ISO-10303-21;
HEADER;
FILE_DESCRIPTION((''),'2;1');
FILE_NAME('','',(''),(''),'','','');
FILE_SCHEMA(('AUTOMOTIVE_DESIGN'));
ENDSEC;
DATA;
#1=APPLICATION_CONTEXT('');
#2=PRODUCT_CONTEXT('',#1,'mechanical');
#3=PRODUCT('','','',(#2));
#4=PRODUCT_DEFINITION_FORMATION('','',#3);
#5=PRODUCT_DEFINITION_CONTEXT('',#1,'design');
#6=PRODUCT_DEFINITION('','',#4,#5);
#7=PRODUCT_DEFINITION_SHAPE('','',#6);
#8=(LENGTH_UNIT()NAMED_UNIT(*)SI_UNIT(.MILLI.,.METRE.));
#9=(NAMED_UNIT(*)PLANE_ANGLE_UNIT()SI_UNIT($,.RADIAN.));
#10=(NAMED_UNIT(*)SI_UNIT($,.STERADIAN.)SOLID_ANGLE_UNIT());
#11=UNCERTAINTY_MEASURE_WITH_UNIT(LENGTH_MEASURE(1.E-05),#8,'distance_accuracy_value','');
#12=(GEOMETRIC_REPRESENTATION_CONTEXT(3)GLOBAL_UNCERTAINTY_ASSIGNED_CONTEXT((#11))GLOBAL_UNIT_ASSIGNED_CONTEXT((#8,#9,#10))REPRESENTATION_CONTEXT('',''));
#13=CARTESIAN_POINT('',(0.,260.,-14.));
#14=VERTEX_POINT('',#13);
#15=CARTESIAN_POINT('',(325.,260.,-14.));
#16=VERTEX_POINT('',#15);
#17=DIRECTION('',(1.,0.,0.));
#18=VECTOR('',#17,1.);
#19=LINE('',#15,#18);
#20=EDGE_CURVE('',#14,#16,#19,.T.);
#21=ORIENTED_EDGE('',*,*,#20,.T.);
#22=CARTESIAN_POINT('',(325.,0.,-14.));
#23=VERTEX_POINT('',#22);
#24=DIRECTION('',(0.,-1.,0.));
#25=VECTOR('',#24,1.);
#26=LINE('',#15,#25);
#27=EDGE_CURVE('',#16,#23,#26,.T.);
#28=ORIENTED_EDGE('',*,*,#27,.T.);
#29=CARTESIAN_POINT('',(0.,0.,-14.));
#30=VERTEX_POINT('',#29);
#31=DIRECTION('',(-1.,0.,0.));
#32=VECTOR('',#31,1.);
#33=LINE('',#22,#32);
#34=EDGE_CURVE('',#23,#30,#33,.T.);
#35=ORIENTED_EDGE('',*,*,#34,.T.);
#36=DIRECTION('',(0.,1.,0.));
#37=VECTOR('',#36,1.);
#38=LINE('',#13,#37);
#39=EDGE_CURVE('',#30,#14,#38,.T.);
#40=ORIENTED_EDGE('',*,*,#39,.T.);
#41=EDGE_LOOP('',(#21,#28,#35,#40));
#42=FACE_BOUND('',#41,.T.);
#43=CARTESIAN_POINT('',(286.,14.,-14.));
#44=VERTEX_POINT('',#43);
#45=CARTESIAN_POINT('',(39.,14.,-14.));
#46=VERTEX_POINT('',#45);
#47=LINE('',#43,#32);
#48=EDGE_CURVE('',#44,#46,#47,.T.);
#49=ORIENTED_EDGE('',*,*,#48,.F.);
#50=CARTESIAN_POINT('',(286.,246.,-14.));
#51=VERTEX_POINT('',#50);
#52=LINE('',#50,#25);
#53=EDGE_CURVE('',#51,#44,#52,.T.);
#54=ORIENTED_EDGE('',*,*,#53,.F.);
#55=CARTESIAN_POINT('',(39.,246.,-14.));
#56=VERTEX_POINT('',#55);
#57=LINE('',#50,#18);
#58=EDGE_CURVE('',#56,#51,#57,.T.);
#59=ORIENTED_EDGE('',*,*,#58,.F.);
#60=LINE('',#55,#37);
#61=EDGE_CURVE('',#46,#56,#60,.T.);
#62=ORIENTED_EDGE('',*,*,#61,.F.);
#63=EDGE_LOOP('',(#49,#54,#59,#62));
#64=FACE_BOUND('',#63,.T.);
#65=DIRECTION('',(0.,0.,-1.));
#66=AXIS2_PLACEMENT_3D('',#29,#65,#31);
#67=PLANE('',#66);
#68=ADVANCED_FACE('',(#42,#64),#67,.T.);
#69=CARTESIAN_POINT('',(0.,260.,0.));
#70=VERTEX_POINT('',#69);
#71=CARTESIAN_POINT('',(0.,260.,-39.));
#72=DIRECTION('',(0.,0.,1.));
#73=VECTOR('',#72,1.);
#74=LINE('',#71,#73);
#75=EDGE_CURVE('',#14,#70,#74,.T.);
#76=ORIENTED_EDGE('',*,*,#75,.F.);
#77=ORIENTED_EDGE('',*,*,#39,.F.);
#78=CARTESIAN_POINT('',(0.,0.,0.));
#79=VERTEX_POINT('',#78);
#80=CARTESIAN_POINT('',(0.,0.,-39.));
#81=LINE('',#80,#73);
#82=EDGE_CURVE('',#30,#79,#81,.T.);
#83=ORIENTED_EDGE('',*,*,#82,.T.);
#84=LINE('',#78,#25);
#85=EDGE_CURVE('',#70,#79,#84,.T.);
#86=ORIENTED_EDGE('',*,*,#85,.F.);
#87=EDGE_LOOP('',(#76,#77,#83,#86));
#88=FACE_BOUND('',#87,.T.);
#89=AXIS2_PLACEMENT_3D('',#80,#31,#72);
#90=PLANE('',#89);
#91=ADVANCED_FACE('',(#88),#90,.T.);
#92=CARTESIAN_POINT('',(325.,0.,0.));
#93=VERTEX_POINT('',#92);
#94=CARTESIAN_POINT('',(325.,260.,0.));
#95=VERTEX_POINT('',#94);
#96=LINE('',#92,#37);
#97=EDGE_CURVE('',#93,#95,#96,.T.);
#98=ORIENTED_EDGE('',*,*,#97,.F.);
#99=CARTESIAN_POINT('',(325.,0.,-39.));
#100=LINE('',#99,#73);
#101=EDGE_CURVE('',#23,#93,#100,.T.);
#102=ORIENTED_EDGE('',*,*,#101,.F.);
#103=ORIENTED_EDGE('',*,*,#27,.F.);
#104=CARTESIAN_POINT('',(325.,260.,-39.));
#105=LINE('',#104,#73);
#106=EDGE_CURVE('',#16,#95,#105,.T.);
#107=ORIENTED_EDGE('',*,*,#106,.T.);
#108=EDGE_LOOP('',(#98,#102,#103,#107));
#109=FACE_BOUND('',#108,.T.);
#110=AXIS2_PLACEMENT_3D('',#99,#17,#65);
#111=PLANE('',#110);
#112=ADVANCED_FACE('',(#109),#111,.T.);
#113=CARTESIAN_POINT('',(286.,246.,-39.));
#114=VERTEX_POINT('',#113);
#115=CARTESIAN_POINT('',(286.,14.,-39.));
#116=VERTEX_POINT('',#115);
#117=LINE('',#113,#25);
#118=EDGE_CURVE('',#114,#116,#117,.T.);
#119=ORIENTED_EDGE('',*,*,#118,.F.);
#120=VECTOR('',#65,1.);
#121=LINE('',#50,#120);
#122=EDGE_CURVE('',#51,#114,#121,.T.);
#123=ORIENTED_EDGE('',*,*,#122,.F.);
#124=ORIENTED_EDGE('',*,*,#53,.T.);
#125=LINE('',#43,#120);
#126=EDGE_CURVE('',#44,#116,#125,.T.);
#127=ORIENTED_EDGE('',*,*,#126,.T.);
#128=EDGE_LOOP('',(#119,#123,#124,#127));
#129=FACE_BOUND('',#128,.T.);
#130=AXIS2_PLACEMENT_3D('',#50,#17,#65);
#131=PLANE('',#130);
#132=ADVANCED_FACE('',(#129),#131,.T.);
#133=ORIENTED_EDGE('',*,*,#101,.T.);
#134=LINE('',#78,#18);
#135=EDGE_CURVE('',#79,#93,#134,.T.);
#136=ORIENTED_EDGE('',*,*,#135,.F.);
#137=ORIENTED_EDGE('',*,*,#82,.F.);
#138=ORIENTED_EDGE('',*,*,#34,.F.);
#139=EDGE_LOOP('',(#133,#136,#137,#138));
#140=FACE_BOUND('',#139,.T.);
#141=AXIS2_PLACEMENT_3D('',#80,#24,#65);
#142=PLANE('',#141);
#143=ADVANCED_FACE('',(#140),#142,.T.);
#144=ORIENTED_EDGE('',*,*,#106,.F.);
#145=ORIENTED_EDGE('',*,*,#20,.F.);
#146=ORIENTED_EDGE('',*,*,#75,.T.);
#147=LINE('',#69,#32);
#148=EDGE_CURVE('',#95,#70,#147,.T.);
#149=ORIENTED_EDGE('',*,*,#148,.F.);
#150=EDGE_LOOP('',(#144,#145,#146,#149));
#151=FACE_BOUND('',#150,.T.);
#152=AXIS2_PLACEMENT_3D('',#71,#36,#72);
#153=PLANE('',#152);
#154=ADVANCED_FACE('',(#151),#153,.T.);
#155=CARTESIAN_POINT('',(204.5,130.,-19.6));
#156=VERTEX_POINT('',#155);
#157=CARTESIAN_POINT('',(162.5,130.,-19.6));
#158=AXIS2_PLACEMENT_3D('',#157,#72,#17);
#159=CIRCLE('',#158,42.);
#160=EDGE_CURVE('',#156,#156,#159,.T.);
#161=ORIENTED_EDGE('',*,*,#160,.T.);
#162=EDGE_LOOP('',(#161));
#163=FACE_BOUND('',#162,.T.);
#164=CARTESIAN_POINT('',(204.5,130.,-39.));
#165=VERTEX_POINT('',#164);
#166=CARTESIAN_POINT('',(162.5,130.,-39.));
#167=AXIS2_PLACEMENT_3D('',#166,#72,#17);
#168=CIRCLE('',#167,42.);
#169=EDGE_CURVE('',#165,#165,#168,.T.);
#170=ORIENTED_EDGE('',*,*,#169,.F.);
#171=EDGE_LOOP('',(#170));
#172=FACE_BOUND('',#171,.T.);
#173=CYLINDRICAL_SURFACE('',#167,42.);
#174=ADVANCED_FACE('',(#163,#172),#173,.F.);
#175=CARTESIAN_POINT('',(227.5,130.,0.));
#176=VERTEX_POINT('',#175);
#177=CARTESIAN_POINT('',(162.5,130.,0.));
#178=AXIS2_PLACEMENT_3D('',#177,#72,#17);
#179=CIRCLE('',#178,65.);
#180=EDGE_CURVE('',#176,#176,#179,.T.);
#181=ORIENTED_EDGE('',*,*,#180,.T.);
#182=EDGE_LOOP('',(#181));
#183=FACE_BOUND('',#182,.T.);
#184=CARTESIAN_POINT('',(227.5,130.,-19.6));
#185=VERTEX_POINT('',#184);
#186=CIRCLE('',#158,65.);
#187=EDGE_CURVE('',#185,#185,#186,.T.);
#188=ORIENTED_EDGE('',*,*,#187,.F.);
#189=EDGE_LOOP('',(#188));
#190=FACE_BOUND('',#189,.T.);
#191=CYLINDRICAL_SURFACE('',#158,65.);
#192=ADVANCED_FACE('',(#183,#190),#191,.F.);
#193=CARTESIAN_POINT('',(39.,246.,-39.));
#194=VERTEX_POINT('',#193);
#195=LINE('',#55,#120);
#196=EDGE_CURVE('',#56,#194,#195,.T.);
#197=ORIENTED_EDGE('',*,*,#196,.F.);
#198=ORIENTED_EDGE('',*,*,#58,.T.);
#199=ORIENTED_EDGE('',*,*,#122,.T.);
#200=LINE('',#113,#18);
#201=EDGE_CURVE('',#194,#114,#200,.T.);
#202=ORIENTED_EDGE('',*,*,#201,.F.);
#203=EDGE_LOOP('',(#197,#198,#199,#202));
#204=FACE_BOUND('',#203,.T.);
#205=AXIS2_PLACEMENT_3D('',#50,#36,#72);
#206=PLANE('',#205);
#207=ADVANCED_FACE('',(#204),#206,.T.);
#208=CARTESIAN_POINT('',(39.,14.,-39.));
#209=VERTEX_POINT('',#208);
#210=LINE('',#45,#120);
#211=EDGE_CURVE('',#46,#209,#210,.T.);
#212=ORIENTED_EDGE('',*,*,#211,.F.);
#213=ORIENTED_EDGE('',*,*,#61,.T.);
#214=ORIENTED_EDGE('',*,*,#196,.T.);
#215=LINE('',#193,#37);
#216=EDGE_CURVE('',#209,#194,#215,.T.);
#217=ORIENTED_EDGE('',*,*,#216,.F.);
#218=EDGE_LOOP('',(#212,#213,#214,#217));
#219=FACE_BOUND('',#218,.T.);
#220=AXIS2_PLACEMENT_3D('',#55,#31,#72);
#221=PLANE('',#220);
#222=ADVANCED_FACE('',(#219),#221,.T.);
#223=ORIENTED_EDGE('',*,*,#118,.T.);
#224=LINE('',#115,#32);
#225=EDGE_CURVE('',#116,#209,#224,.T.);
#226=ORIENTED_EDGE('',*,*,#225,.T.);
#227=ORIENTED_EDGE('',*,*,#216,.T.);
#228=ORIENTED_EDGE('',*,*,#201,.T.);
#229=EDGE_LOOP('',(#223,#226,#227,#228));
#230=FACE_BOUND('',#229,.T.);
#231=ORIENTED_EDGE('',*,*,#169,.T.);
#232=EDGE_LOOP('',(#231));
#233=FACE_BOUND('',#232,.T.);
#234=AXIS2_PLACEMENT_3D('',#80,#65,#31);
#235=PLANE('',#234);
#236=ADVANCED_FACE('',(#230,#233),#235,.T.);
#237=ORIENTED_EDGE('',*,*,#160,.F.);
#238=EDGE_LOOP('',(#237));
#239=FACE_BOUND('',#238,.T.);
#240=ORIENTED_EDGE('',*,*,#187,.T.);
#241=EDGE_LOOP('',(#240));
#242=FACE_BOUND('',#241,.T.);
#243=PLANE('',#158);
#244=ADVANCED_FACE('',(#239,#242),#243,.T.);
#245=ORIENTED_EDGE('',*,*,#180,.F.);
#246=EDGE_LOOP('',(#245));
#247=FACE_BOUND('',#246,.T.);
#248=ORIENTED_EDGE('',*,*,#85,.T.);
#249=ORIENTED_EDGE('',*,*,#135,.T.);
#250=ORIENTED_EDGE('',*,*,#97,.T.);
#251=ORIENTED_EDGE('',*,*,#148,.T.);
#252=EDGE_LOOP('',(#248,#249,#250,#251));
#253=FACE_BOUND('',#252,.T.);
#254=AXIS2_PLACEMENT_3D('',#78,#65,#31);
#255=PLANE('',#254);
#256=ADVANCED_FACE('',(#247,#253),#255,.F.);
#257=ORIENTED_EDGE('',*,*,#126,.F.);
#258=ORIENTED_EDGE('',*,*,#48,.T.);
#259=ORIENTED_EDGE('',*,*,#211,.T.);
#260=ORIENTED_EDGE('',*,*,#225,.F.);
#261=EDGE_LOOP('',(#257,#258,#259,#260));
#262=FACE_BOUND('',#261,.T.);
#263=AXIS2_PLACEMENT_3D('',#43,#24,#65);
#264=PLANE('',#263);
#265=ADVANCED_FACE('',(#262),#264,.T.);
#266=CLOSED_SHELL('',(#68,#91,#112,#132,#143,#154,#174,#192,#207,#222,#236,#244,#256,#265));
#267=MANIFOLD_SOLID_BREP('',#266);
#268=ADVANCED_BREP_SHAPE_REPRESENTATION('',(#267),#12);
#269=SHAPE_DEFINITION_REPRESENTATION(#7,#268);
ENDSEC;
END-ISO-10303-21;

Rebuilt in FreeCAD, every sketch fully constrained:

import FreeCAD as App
import Part
import Sketcher
from FreeCAD import Vector
Q = App.Units.Quantity

doc = App.newDocument("Part")
params = doc.addObject("Spreadsheet::Sheet", "Params")
for row, (alias, value) in enumerate([
    ("sketch1_width", "325 mm"),
    ("sketch1_height", "260 mm"),
    ("pad1_length", "39 mm"),
    ("sketch2_diameter", "130 mm"),
    ("pocket1_length", "19.6 mm"),
    ("sketch3_diameter", "84 mm"),
    ("sketch4_width", "325 mm"),
    ("sketch4_width2", "247 mm"),
    ("sketch4_height", "260 mm"),
    ("sketch4_height2", "232 mm"),
    ("pocket3_length", "25 mm"),
], start=1):
    params.set(f"A{row}", alias)
    params.set(f"B{row}", "=" + value)
    params.setAlias(f"B{row}", alias)

body = doc.addObject("PartDesign::Body", "Body")

sketch1 = doc.addObject("Sketcher::SketchObject", "Sketch")
body.addObject(sketch1)
sketch1.AttachmentSupport = (doc.XY_Plane, [""])
sketch1.MapMode = "FlatFace"
sketch1.addGeometry([
    Part.LineSegment(Vector(0, 260, 0), Vector(0, 0, 0)),
    Part.LineSegment(Vector(0, 0, 0), Vector(325, 0, 0)),
    Part.LineSegment(Vector(325, 0, 0), Vector(325, 260, 0)),
    Part.LineSegment(Vector(325, 260, 0), Vector(0, 260, 0)),
], False)
sketch1.addConstraint([
    Sketcher.Constraint("Coincident", 0, 2, 1, 1),
    Sketcher.Constraint("Coincident", 1, 2, 2, 1),
    Sketcher.Constraint("Coincident", 2, 2, 3, 1),
    Sketcher.Constraint("Coincident", 3, 2, 0, 1),
    Sketcher.Constraint("Vertical", 0),
    Sketcher.Constraint("Horizontal", 1),
    Sketcher.Constraint("Vertical", 2),
    Sketcher.Constraint("Horizontal", 3),
    Sketcher.Constraint("Coincident", 0, 2, -1, 1),
    Sketcher.Constraint("DistanceX", 1, 1, 1, 2, Q("325 mm")),
    Sketcher.Constraint("DistanceY", 0, 2, 0, 1, Q("260 mm")),
])
sketch1.setExpression("Constraints[9]", "Params.sketch1_width")
sketch1.setExpression("Constraints[10]", "Params.sketch1_height")
pad1 = doc.addObject("PartDesign::Pad", "Pad")
body.addObject(pad1)
pad1.Profile = sketch1
pad1.setExpression("Length", "Params.pad1_length")
pad1.Reversed = True

sketch2 = doc.addObject("Sketcher::SketchObject", "Sketch001")
body.addObject(sketch2)
sketch2.AttachmentSupport = (doc.XY_Plane, [""])
sketch2.MapMode = "FlatFace"
sketch2.addGeometry(Part.Circle(Vector(162, 130, 0), Vector(0, 0, 1), 65), False)
sketch2.addConstraint([
    Sketcher.Constraint("Diameter", 0, Q("130 mm")),
    Sketcher.Constraint("DistanceY", -1, 1, 0, 3, Q("130 mm")),
    Sketcher.Constraint("DistanceX", -1, 1, 0, 3, Q("162.5 mm")),
])
sketch2.setExpression("Constraints[0]", "Params.sketch2_diameter")
pocket1 = doc.addObject("PartDesign::Pocket", "Pocket")
body.addObject(pocket1)
pocket1.Profile = sketch2
pocket1.setExpression("Length", "Params.pocket1_length")

sketch3 = doc.addObject("Sketcher::SketchObject", "Sketch002")
body.addObject(sketch3)
sketch3.AttachmentSupport = (doc.XY_Plane, [""])
sketch3.MapMode = "FlatFace"
sketch3.addGeometry(Part.Circle(Vector(162, 130, 0), Vector(0, 0, 1), 42), False)
sketch3.addConstraint([
    Sketcher.Constraint("Diameter", 0, Q("84 mm")),
    Sketcher.Constraint("DistanceY", -1, 1, 0, 3, Q("130 mm")),
    Sketcher.Constraint("DistanceX", -1, 1, 0, 3, Q("162.5 mm")),
])
sketch3.setExpression("Constraints[0]", "Params.sketch3_diameter")
pocket2 = doc.addObject("PartDesign::Pocket", "Pocket001")
body.addObject(pocket2)
pocket2.Profile = sketch3
pocket2.Type = "ThroughAll"

sketch4 = doc.addObject("Sketcher::SketchObject", "Sketch003")
body.addObject(sketch4)
sketch4.AttachmentSupport = (doc.XY_Plane, [""])
sketch4.MapMode = "FlatFace"
sketch4.AttachmentOffset = App.Placement(Vector(0, 0, -39), App.Rotation())
sketch4.addGeometry([
    Part.LineSegment(Vector(325, 260, 0), Vector(325, 0, 0)),
    Part.LineSegment(Vector(325, 0, 0), Vector(0, 0, 0)),
    Part.LineSegment(Vector(0, 0, 0), Vector(0, 260, 0)),
    Part.LineSegment(Vector(0, 260, 0), Vector(325, 260, 0)),
    Part.LineSegment(Vector(39, 14, 0), Vector(286, 14, 0)),
    Part.LineSegment(Vector(286, 14, 0), Vector(286, 246, 0)),
    Part.LineSegment(Vector(286, 246, 0), Vector(39, 246, 0)),
    Part.LineSegment(Vector(39, 246, 0), Vector(39, 14, 0)),
], False)
sketch4.addConstraint([
    Sketcher.Constraint("Coincident", 0, 2, 1, 1),
    Sketcher.Constraint("Coincident", 1, 2, 2, 1),
    Sketcher.Constraint("Coincident", 2, 2, 3, 1),
    Sketcher.Constraint("Coincident", 3, 2, 0, 1),
    Sketcher.Constraint("Coincident", 4, 2, 5, 1),
    Sketcher.Constraint("Coincident", 5, 2, 6, 1),
    Sketcher.Constraint("Coincident", 6, 2, 7, 1),
    Sketcher.Constraint("Coincident", 7, 2, 4, 1),
    Sketcher.Constraint("Vertical", 0),
    Sketcher.Constraint("Horizontal", 1),
    Sketcher.Constraint("Vertical", 2),
    Sketcher.Constraint("Horizontal", 3),
    Sketcher.Constraint("Horizontal", 4),
    Sketcher.Constraint("Vertical", 5),
    Sketcher.Constraint("Horizontal", 6),
    Sketcher.Constraint("Vertical", 7),
    Sketcher.Constraint("Coincident", 1, 2, -1, 1),
    Sketcher.Constraint("DistanceX", 1, 2, 1, 1, Q("325 mm")),
    Sketcher.Constraint("DistanceX", 4, 1, 4, 2, Q("247 mm")),
    Sketcher.Constraint("DistanceY", 0, 2, 0, 1, Q("260 mm")),
    Sketcher.Constraint("DistanceY", 5, 1, 5, 2, Q("232 mm")),
    Sketcher.Constraint("DistanceX", -1, 1, 4, 2, Q("286 mm")),
    Sketcher.Constraint("DistanceY", -1, 1, 4, 2, Q("14 mm")),
])
sketch4.setExpression("Constraints[17]", "Params.sketch4_width")
sketch4.setExpression("Constraints[18]", "Params.sketch4_width2")
sketch4.setExpression("Constraints[19]", "Params.sketch4_height")
sketch4.setExpression("Constraints[20]", "Params.sketch4_height2")
pocket3 = doc.addObject("PartDesign::Pocket", "Pocket002")
body.addObject(pocket3)
pocket3.Profile = sketch4
pocket3.setExpression("Length", "Params.pocket3_length")
pocket3.Reversed = True

doc.recompute()
